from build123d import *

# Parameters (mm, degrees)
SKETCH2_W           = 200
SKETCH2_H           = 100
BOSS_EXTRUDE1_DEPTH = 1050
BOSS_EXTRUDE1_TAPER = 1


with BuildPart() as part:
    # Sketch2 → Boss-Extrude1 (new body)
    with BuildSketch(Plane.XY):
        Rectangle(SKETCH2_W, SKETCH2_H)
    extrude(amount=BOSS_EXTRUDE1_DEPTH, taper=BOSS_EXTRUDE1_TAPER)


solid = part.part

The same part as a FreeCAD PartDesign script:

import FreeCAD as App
import Part
import Sketcher

doc = App.newDocument("Part")
body = doc.addObject("PartDesign::Body", "Body")

sketch1 = doc.addObject("Sketcher::SketchObject", "Sketch")
body.addObject(sketch1)
sketch1.AttachmentSupport = (doc.XY_Plane, [""])
sketch1.MapMode = "FlatFace"
sketch1.addGeometry([
    Part.LineSegment(App.Vector(-100, 50, 0), App.Vector(-100, -50, 0)),
    Part.LineSegment(App.Vector(-100, -50, 0), App.Vector(100, -50, 0)),
    Part.LineSegment(App.Vector(100, -50, 0), App.Vector(100, 50, 0)),
    Part.LineSegment(App.Vector(100, 50, 0), App.Vector(-100, 50, 0)),
], False)
sketch1.addConstraint([
    Sketcher.Constraint("Coincident", 0, 2, 1, 1),
    Sketcher.Constraint("Coincident", 1, 2, 2, 1),
    Sketcher.Constraint("Coincident", 2, 2, 3, 1),
    Sketcher.Constraint("Coincident", 3, 2, 0, 1),
    Sketcher.Constraint("Vertical", 0),
    Sketcher.Constraint("Horizontal", 1),
    Sketcher.Constraint("Vertical", 2),
    Sketcher.Constraint("Horizontal", 3),
    Sketcher.Constraint("Symmetric", 0, 2, 2, 2, -1, 1),
    Sketcher.Constraint("DistanceX", 1, 1, 1, 2, 200.0),
    Sketcher.Constraint("DistanceY", 0, 2, 0, 1, 100.0),
])
pad1 = doc.addObject("PartDesign::Pad", "Pad")
body.addObject(pad1)
pad1.Profile = sketch1
pad1.Length = 1050
pad1.TaperAngle = -1

doc.recompute()
